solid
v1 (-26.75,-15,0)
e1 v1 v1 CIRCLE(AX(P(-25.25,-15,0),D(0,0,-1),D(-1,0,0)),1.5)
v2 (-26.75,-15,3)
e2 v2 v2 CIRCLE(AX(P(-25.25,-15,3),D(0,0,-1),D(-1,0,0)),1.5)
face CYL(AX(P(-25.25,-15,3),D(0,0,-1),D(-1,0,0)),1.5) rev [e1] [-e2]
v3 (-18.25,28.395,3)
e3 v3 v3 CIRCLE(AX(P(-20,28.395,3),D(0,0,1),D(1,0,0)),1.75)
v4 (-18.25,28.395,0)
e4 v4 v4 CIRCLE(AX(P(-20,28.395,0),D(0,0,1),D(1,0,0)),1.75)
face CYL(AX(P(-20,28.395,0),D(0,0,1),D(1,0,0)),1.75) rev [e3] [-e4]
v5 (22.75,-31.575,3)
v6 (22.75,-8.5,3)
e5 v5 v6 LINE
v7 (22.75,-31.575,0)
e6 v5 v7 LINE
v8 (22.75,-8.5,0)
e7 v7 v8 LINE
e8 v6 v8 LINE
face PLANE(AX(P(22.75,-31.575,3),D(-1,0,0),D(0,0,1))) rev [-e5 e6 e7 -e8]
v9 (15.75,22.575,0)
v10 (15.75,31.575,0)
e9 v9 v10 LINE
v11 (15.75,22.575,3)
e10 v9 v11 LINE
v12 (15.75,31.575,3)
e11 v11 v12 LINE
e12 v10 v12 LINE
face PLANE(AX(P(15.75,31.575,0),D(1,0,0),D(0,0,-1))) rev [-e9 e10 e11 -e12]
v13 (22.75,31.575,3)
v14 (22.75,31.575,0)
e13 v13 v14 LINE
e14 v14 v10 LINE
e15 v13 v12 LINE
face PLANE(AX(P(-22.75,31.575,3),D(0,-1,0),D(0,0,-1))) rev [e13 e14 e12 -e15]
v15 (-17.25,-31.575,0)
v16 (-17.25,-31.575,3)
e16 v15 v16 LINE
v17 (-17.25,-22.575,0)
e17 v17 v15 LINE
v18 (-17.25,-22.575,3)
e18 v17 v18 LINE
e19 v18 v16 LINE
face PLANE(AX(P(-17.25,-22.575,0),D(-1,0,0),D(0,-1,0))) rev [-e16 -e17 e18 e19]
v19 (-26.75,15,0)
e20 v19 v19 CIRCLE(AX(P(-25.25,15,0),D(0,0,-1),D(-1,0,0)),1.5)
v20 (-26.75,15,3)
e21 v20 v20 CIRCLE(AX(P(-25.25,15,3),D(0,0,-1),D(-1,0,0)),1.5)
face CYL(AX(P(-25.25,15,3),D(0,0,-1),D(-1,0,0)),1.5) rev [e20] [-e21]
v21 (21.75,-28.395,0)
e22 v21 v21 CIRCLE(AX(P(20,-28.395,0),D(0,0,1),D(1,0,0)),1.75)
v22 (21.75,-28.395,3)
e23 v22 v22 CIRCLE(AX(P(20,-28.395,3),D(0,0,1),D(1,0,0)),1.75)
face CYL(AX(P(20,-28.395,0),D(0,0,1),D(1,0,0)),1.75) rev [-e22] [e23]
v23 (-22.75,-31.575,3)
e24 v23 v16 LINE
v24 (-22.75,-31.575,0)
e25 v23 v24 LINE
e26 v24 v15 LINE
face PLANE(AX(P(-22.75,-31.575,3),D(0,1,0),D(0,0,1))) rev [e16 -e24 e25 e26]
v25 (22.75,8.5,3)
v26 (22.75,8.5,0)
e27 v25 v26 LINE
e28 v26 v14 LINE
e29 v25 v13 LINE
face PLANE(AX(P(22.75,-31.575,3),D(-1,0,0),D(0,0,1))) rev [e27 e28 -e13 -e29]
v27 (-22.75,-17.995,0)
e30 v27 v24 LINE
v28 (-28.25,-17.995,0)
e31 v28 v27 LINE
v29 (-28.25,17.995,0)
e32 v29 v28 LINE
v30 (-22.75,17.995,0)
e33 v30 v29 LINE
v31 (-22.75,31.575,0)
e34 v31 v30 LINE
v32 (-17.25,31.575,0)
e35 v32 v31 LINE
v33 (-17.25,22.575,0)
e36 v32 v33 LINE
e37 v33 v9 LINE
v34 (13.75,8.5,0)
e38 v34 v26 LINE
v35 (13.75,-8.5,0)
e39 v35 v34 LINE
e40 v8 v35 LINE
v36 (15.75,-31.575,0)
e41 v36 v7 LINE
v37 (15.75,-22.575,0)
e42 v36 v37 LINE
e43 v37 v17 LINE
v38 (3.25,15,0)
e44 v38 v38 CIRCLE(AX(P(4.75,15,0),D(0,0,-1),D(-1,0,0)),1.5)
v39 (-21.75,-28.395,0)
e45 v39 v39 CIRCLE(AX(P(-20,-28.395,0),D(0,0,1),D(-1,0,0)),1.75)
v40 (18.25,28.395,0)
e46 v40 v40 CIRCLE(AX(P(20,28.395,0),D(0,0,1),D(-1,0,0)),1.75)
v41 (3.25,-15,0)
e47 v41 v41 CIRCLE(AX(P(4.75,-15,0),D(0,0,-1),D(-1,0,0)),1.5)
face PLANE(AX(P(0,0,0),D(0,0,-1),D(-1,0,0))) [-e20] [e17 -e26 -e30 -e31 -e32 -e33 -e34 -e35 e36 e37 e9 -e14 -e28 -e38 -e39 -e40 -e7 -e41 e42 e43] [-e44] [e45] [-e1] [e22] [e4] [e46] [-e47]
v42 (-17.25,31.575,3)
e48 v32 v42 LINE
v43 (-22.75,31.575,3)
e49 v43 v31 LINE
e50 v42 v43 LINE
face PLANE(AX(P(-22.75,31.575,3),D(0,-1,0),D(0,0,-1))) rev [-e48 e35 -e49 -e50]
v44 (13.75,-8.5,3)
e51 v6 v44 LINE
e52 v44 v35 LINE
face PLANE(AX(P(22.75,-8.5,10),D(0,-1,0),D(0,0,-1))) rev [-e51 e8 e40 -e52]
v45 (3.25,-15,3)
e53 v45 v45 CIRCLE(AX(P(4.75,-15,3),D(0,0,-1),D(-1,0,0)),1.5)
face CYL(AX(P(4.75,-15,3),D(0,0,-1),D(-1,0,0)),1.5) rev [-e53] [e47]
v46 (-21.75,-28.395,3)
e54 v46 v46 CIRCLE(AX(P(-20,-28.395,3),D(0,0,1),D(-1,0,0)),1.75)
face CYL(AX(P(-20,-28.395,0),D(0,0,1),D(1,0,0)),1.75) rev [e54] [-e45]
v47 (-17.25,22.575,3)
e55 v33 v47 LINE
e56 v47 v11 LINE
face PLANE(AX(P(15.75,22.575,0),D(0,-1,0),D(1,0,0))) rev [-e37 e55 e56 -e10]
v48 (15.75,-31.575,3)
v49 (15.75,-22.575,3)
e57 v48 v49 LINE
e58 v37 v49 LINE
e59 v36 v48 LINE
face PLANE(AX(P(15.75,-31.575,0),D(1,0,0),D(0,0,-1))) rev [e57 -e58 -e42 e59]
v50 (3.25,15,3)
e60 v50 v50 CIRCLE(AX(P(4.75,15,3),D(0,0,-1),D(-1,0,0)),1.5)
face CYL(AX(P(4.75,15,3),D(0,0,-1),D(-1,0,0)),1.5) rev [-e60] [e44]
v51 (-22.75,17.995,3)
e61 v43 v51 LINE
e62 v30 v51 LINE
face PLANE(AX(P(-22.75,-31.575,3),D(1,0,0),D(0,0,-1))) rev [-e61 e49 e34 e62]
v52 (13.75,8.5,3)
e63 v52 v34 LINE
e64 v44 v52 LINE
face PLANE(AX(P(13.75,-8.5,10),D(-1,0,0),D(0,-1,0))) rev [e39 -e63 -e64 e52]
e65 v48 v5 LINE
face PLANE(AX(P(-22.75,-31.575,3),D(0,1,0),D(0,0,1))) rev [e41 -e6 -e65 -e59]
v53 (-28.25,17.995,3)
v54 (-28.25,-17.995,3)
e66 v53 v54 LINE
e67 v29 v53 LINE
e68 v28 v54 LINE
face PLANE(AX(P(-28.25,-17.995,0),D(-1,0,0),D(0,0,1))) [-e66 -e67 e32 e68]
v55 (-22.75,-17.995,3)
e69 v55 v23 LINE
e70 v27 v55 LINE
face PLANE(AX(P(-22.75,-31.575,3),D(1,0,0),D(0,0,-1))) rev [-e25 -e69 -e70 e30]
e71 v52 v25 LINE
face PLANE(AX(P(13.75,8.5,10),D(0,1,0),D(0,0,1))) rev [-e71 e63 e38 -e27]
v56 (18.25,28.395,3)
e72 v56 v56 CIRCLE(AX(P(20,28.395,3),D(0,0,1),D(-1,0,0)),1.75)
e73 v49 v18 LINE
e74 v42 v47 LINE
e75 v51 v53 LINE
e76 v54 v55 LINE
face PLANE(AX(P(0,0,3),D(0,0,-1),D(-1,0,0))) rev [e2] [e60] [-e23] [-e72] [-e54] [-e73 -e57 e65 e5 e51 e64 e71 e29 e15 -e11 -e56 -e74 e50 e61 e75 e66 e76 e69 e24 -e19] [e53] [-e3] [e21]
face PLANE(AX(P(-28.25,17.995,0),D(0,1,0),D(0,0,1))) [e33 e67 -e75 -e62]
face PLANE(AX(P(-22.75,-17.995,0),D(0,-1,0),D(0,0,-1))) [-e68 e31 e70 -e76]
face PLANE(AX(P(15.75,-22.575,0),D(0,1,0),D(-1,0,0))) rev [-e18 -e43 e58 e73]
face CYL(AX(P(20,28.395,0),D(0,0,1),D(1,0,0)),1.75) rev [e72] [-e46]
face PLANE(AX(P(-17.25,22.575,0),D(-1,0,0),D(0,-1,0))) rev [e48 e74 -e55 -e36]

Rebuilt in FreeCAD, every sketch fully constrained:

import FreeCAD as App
import Part
import Sketcher
Q = App.Units.Quantity

doc = App.newDocument("Part")
body = doc.addObject("PartDesign::Body", "Body")

# Sketch on XY plane
sketch1 = body.newObject("Sketcher::SketchObject", "Sketch")
sketch1.AttachmentSupport = (doc.getObject("XY_Plane"), [""])
sketch1.MapMode = "FlatFace"
sketch1.addGeometry(Part.LineSegment(App.Vector(-23, 32, 0), App.Vector(-23, -32, 0)), False)
sketch1.addGeometry(Part.LineSegment(App.Vector(-23, -32, 0), App.Vector(23, -32, 0)), False)
sketch1.addGeometry(Part.LineSegment(App.Vector(23, -32, 0), App.Vector(23, 32, 0)), False)
sketch1.addGeometry(Part.LineSegment(App.Vector(23, 32, 0), App.Vector(-23, 32, 0)), False)
sketch1.addConstraint(Sketcher.Constraint("Coincident", 0, 2, 1, 1))
sketch1.addConstraint(Sketcher.Constraint("Coincident", 1, 2, 2, 1))
sketch1.addConstraint(Sketcher.Constraint("Coincident", 2, 2, 3, 1))
sketch1.addConstraint(Sketcher.Constraint("Coincident", 3, 2, 0, 1))
sketch1.addConstraint(Sketcher.Constraint("Vertical", 0))
sketch1.addConstraint(Sketcher.Constraint("Horizontal", 1))
sketch1.addConstraint(Sketcher.Constraint("Vertical", 2))
sketch1.addConstraint(Sketcher.Constraint("Horizontal", 3))
sketch1.addConstraint(Sketcher.Constraint("Symmetric", 0, 2, 2, 2, -1, 1))
sketch1.addConstraint(Sketcher.Constraint("DistanceX", 1, 1, 1, 2, Q("45.5 mm")))
sketch1.addConstraint(Sketcher.Constraint("DistanceY", 0, 2, 0, 1, Q("63.15 mm")))
pad1 = body.newObject("PartDesign::Pad", "Pad")
pad1.Profile = sketch1
pad1.Length = 3

# Sketch on XY plane
sketch2 = body.newObject("Sketcher::SketchObject", "Sketch001")
sketch2.AttachmentSupport = (doc.getObject("XY_Plane"), [""])
sketch2.MapMode = "FlatFace"
sketch2.AttachmentOffset = App.Placement(App.Vector(0, 0, 3), App.Rotation())
sketch2.addGeometry(Part.Circle(App.Vector(20, -28.4, 0), App.Vector(0, 0, 1), 1.8), False)
sketch2.addGeometry(Part.Circle(App.Vector(20, 28.4, 0), App.Vector(0, 0, 1), 1.8), False)
sketch2.addGeometry(Part.Circle(App.Vector(-20, 28.4, 0), App.Vector(0, 0, 1), 1.8), False)
sketch2.addGeometry(Part.Circle(App.Vector(-20, -28.4, 0), App.Vector(0, 0, 1), 1.8), False)
sketch2.addConstraint(Sketcher.Constraint("Equal", 0, 1))
sketch2.addConstraint(Sketcher.Constraint("Equal", 1, 2))
sketch2.addConstraint(Sketcher.Constraint("Equal", 2, 3))
sketch2.addConstraint(Sketcher.Constraint("Symmetric", 0, 3, 2, 3, -1, 1))
sketch2.addConstraint(Sketcher.Constraint("Symmetric", 1, 3, 3, 3, -1, 1))
sketch2.addConstraint(Sketcher.Constraint("Symmetric", 1, 3, 2, 3, -2))
sketch2.addConstraint(Sketcher.Constraint("Diameter", 0, Q("3.5 mm")))
sketch2.addConstraint(Sketcher.Constraint("DistanceX", -1, 1, 0, 3, Q("20 mm")))
sketch2.addConstraint(Sketcher.Constraint("DistanceY", 0, 3, 1, 3, Q("56.79 mm")))
pocket1 = body.newObject("PartDesign::Pocket", "Pocket")
pocket1.Profile = sketch2
pocket1.Length = 3

# Sketch on XY plane
sketch3 = body.newObject("Sketcher::SketchObject", "Sketch002")
sketch3.AttachmentSupport = (doc.getObject("XY_Plane"), [""])
sketch3.MapMode = "FlatFace"
sketch3.AttachmentOffset = App.Placement(App.Vector(0, 0, 3), App.Rotation())
sketch3.addGeometry(Part.LineSegment(App.Vector(-17, 32, 0), App.Vector(-17, 23, 0)), False)
sketch3.addGeometry(Part.LineSegment(App.Vector(-17, 23, 0), App.Vector(16, 23, 0)), False)
sketch3.addGeometry(Part.LineSegment(App.Vector(16, 23, 0), App.Vector(16, 32, 0)), False)
sketch3.addGeometry(Part.LineSegment(App.Vector(16, 32, 0), App.Vector(-17, 32, 0)), False)
sketch3.addGeometry(Part.LineSegment(App.Vector(-17, -23, 0), App.Vector(-17, -32, 0)), False)
sketch3.addGeometry(Part.LineSegment(App.Vector(-17, -32, 0), App.Vector(16, -32, 0)), False)
sketch3.addGeometry(Part.LineSegment(App.Vector(16, -32, 0), App.Vector(16, -23, 0)), False)
sketch3.addGeometry(Part.LineSegment(App.Vector(16, -23, 0), App.Vector(-17, -23, 0)), False)
sketch3.addConstraint(Sketcher.Constraint("Coincident", 0, 2, 1, 1))
sketch3.addConstraint(Sketcher.Constraint("Coincident", 1, 2, 2, 1))
sketch3.addConstraint(Sketcher.Constraint("Coincident", 2, 2, 3, 1))
sketch3.addConstraint(Sketcher.Constraint("Coincident", 3, 2, 0, 1))
sketch3.addConstraint(Sketcher.Constraint("Coincident", 4, 2, 5, 1))
sketch3.addConstraint(Sketcher.Constraint("Coincident", 5, 2, 6, 1))
sketch3.addConstraint(Sketcher.Constraint("Coincident", 6, 2, 7, 1))
sketch3.addConstraint(Sketcher.Constraint("Coincident", 7, 2, 4, 1))
sketch3.addConstraint(Sketcher.Constraint("Vertical", 0))
sketch3.addConstraint(Sketcher.Constraint("Horizontal", 1))
sketch3.addConstraint(Sketcher.Constraint("Vertical", 2))
sketch3.addConstraint(Sketcher.Constraint("Horizontal", 3))
sketch3.addConstraint(Sketcher.Constraint("Vertical", 4))
sketch3.addConstraint(Sketcher.Constraint("Horizontal", 5))
sketch3.addConstraint(Sketcher.Constraint("Vertical", 6))
sketch3.addConstraint(Sketcher.Constraint("Horizontal", 7))
sketch3.addConstraint(Sketcher.Constraint("Symmetric", 3, 2, 4, 2, -1))
sketch3.addConstraint(Sketcher.Constraint("Symmetric", 1, 2, 6, 2, -1))
sketch3.addConstraint(Sketcher.Constraint("DistanceX", 1, 1, 1, 2, Q("33 mm")))
sketch3.addConstraint(Sketcher.Constraint("DistanceY", 0, 2, 0, 1, Q("9 mm")))
sketch3.addConstraint(Sketcher.Constraint("DistanceX", 0, 2, -1, 1, Q("17.25 mm")))
sketch3.addConstraint(Sketcher.Constraint("DistanceY", 4, 2, 0, 2, Q("54.15 mm")))
pocket2 = body.newObject("PartDesign::Pocket", "Pocket001")
pocket2.Profile = sketch3
pocket2.Length = 3

# Sketch on XY plane
sketch4 = body.newObject("Sketcher::SketchObject", "Sketch003")
sketch4.AttachmentSupport = (doc.getObject("XY_Plane"), [""])
sketch4.MapMode = "FlatFace"
sketch4.AttachmentOffset = App.Placement(App.Vector(0, 0, 3), App.Rotation())
sketch4.addGeometry(Part.LineSegment(App.Vector(-28, 18, 0), App.Vector(-28, -18, 0)), False)
sketch4.addGeometry(Part.LineSegment(App.Vector(-28, -18, 0), App.Vector(-23, -18, 0)), False)
sketch4.addGeometry(Part.LineSegment(App.Vector(-23, -18, 0), App.Vector(-23, 18, 0)), False)
sketch4.addGeometry(Part.LineSegment(App.Vector(-23, 18, 0), App.Vector(-28, 18, 0)), False)
sketch4.addConstraint(Sketcher.Constraint("Coincident", 0, 2, 1, 1))
sketch4.addConstraint(Sketcher.Constraint("Coincident", 1, 2, 2, 1))
sketch4.addConstraint(Sketcher.Constraint("Coincident", 2, 2, 3, 1))
sketch4.addConstraint(Sketcher.Constraint("Coincident", 3, 2, 0, 1))
sketch4.addConstraint(Sketcher.Constraint("Vertical", 0))
sketch4.addConstraint(Sketcher.Constraint("Horizontal", 1))
sketch4.addConstraint(Sketcher.Constraint("Vertical", 2))
sketch4.addConstraint(Sketcher.Constraint("Horizontal", 3))
sketch4.addConstraint(Sketcher.Constraint("DistanceX", 1, 1, 1, 2, Q("5.5 mm")))
sketch4.addConstraint(Sketcher.Constraint("DistanceY", 0, 2, 0, 1, Q("35.99 mm")))
sketch4.addConstraint(Sketcher.Constraint("DistanceX", 0, 2, -1, 1, Q("28.25 mm")))
sketch4.addConstraint(Sketcher.Constraint("DistanceY", 0, 2, -1, 1, Q("17.995 mm")))
pad2 = body.newObject("PartDesign::Pad", "Pad001")
pad2.Profile = sketch4
pad2.Length = 3
pad2.Reversed = True

# Sketch on XY plane
sketch5 = body.newObject("Sketcher::SketchObject", "Sketch004")
sketch5.AttachmentSupport = (doc.getObject("XY_Plane"), [""])
sketch5.MapMode = "FlatFace"
sketch5.addGeometry(Part.Circle(App.Vector(4.8, 15, 0), App.Vector(0, 0, 1), 1.5), False)
sketch5.addGeometry(Part.Circle(App.Vector(-25.2, 15, 0), App.Vector(0, 0, 1), 1.5), False)
sketch5.addGeometry(Part.Circle(App.Vector(-25.2, -15, 0), App.Vector(0, 0, 1), 1.5), False)
sketch5.addGeometry(Part.Circle(App.Vector(4.8, -15, 0), App.Vector(0, 0, 1), 1.5), False)
sketch5.addConstraint(Sketcher.Constraint("Equal", 0, 1))
sketch5.addConstraint(Sketcher.Constraint("Equal", 1, 2))
sketch5.addConstraint(Sketcher.Constraint("Equal", 2, 3))
sketch5.addConstraint(Sketcher.Constraint("Symmetric", 1, 3, 2, 3, -1))
sketch5.addConstraint(Sketcher.Constraint("Symmetric", 0, 3, 3, 3, -1))
sketch5.addConstraint(Sketcher.Constraint("Horizontal", 0, 3, 1, 3))
sketch5.addConstraint(Sketcher.Constraint("Diameter", 0, Q("3 mm")))
sketch5.addConstraint(Sketcher.Constraint("DistanceY", -1, 1, 0, 3, Q("15 mm")))
sketch5.addConstraint(Sketcher.Constraint("DistanceX", 1, 3, 0, 3, Q("30 mm")))
sketch5.addConstraint(Sketcher.Constraint("DistanceX", -1, 1, 0, 3, Q("4.75 mm")))
pocket3 = body.newObject("PartDesign::Pocket", "Pocket002")
pocket3.Profile = sketch5
pocket3.Length = 3
pocket3.Reversed = True

# Sketch on XY plane
sketch6 = body.newObject("Sketcher::SketchObject", "Sketch005")
sketch6.AttachmentSupport = (doc.getObject("XY_Plane"), [""])
sketch6.MapMode = "FlatFace"
sketch6.addGeometry(Part.LineSegment(App.Vector(23, -8, 0), App.Vector(14, -8, 0)), False)
sketch6.addGeometry(Part.LineSegment(App.Vector(14, -8, 0), App.Vector(14, 8, 0)), False)
sketch6.addGeometry(Part.LineSegment(App.Vector(14, 8, 0), App.Vector(23, 8, 0)), False)
sketch6.addGeometry(Part.LineSegment(App.Vector(23, 8, 0), App.Vector(23, -8, 0)), False)
sketch6.addConstraint(Sketcher.Constraint("Coincident", 0, 2, 1, 1))
sketch6.addConstraint(Sketcher.Constraint("Coincident", 1, 2, 2, 1))
sketch6.addConstraint(Sketcher.Constraint("Coincident", 2, 2, 3, 1))
sketch6.addConstraint(Sketcher.Constraint("Coincident", 3, 2, 0, 1))
sketch6.addConstraint(Sketcher.Constraint("Horizontal", 0))
sketch6.addConstraint(Sketcher.Constraint("Vertical", 1))
sketch6.addConstraint(Sketcher.Constraint("Horizontal", 2))
sketch6.addConstraint(Sketcher.Constraint("Vertical", 3))
sketch6.addConstraint(Sketcher.Constraint("DistanceX", 0, 2, 0, 1, Q("9 mm")))
sketch6.addConstraint(Sketcher.Constraint("DistanceY", 1, 1, 1, 2, Q("17 mm")))
sketch6.addConstraint(Sketcher.Constraint("DistanceY", 0, 2, -1, 1, Q("8.5 mm")))
sketch6.addConstraint(Sketcher.Constraint("DistanceX", -1, 1, 0, 2, Q("13.75 mm")))
pocket4 = body.newObject("PartDesign::Pocket", "Pocket003")
pocket4.Profile = sketch6
pocket4.Length = 10
pocket4.Reversed = True

doc.recompute()
